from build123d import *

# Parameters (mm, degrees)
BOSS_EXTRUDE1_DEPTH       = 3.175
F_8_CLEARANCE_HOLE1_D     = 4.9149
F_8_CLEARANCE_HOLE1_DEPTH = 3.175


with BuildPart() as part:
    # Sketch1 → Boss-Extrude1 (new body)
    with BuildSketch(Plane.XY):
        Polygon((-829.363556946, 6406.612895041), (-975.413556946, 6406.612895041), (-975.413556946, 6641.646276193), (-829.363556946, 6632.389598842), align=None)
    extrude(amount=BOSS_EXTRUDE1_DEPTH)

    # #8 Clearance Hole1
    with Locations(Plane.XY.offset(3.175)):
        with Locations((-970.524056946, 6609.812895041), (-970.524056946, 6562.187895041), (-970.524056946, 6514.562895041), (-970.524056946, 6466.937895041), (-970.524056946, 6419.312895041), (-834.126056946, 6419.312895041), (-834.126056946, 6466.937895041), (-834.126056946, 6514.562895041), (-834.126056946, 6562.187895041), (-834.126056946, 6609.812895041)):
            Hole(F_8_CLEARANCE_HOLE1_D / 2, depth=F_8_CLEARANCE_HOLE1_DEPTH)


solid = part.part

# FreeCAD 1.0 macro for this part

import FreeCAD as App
import Part
import Sketcher

V = App.Vector
Q = App.Units.Quantity


def add_polygon(sketch, points):
    """Adds a closed chain of lines whose ends are joined by coincident constraints."""
    first, n = sketch.GeometryCount, len(points)
    for a, b in zip(points, points[1:] + points[:1]):
        sketch.addGeometry(Part.LineSegment(App.Vector(*a, 0), App.Vector(*b, 0)), False)
    for i in range(n):
        sketch.addConstraint(Sketcher.Constraint("Coincident", first + i, 2, first + (i + 1) % n, 1))

doc = App.newDocument("Part")
body = doc.addObject("PartDesign::Body", "Body")

# Sketch on XY plane
sketch1 = body.newObject("Sketcher::SketchObject", "Sketch")
sketch1.AttachmentSupport = (doc.getObject("XY_Plane"), [""])
sketch1.MapMode = "FlatFace"
add_polygon(sketch1, [(-975, 6407), (-829, 6407), (-829, 6632), (-975, 6642)])  # lines 0-3
sketch1.addConstraint([
    Sketcher.Constraint("Horizontal", 0),
    Sketcher.Constraint("Vertical", 1),
    Sketcher.Constraint("Vertical", 3),
    Sketcher.Constraint("DistanceX", 0, 1, 0, 2, Q("5.75 in")),
    Sketcher.Constraint("DistanceY", 3, 2, 3, 1, 235.033381),
    Sketcher.Constraint("DistanceY", -1, 1, 1, 2, 6632.389599),
    Sketcher.Constraint("Distance", 2, 146.343051),
    Sketcher.Constraint("DistanceX", 0, 2, -1, 1, 829.363557),
])
pad1 = body.newObject("PartDesign::Pad", "Pad")
pad1.Profile = sketch1
pad1.Length = Q("0.125 in")

# Sketch on XY plane
sketch2 = body.newObject("Sketcher::SketchObject", "Sketch001")
sketch2.AttachmentSupport = (doc.getObject("XY_Plane"), [""])
sketch2.MapMode = "FlatFace"
sketch2.AttachmentOffset = App.Placement(V(0, 0, 0.125 * 25.4), App.Rotation())
sketch2.addGeometry([
    Part.Circle(V(-970.5, 6609.8, 0), V(0, 0, 1), 2.5),  # 0
    Part.Circle(V(-970.5, 6562.2, 0), V(0, 0, 1), 2.5),  # 1
    Part.Circle(V(-970.5, 6514.6, 0), V(0, 0, 1), 2.5),  # 2
    Part.Circle(V(-970.5, 6466.9, 0), V(0, 0, 1), 2.5),  # 3
    Part.Circle(V(-970.5, 6419.3, 0), V(0, 0, 1), 2.5),  # 4
    Part.Circle(V(-834.1, 6419.3, 0), V(0, 0, 1), 2.5),  # 5
    Part.Circle(V(-834.1, 6466.9, 0), V(0, 0, 1), 2.5),  # 6
    Part.Circle(V(-834.1, 6514.6, 0), V(0, 0, 1), 2.5),  # 7
    Part.Circle(V(-834.1, 6562.2, 0), V(0, 0, 1), 2.5),  # 8
    Part.Circle(V(-834.1, 6609.8, 0), V(0, 0, 1), 2.5),  # 9
], False)
sketch2.addConstraint([
    Sketcher.Constraint("Equal", 0, 1),
    Sketcher.Constraint("Equal", 1, 2),
    Sketcher.Constraint("Equal", 2, 3),
    Sketcher.Constraint("Equal", 3, 4),
    Sketcher.Constraint("Equal", 4, 5),
    Sketcher.Constraint("Equal", 5, 6),
    Sketcher.Constraint("Equal", 6, 7),
    Sketcher.Constraint("Equal", 7, 8),
    Sketcher.Constraint("Equal", 8, 9),
    Sketcher.Constraint("Horizontal", 4, 3, 5, 3),
    Sketcher.Constraint("Horizontal", 3, 3, 6, 3),
    Sketcher.Constraint("Horizontal", 2, 3, 7, 3),
    Sketcher.Constraint("Horizontal", 1, 3, 8, 3),
    Sketcher.Constraint("Horizontal", 0, 3, 9, 3),
    Sketcher.Constraint("Vertical", 0, 3, 1, 3),
    Sketcher.Constraint("Vertical", 1, 3, 2, 3),
    Sketcher.Constraint("Vertical", 2, 3, 3, 3),
    Sketcher.Constraint("Vertical", 3, 3, 4, 3),
    Sketcher.Constraint("Vertical", 5, 3, 6, 3),
    Sketcher.Constraint("Vertical", 6, 3, 7, 3),
    Sketcher.Constraint("Vertical", 7, 3, 8, 3),
    Sketcher.Constraint("Vertical", 8, 3, 9, 3),
    Sketcher.Constraint("Diameter", 0, Q("0.1935 in")),
    Sketcher.Constraint("DistanceY", 4, 3, 0, 3, Q("7.5 in")),
    Sketcher.Constraint("DistanceY", 2, 3, 0, 3, Q("3.75 in")),
    Sketcher.Constraint("DistanceY", 3, 3, 1, 3, Q("3.75 in")),
    Sketcher.Constraint("DistanceX", 4, 3, 5, 3, Q("5.37 in")),
    Sketcher.Constraint("DistanceY", 1, 3, 0, 3, Q("1.875 in")),
    Sketcher.Constraint("DistanceX", 0, 3, -1, 1, 970.524057),
    Sketcher.Constraint("DistanceY", -1, 1, 0, 3, 6609.812895),
])
doc.recompute()
hole = body.newObject("PartDesign::Hole", "Hole")
hole.Profile = sketch2
hole.ThreadType = "None"
hole.Diameter = Q("0.1935 in")
hole.DepthType = "Dimension"
hole.Depth = Q("0.125 in")
hole.DrillPoint = "Flat"

doc.recompute()
